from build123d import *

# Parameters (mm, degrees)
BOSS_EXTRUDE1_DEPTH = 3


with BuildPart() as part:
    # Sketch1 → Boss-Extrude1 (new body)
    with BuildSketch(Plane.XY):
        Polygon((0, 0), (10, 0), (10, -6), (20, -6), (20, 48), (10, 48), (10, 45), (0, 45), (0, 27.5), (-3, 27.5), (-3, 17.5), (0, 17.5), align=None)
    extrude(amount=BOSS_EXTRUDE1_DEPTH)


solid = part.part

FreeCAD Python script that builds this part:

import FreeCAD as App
import Part
import Sketcher


def add_polygon(sketch, points):
    """Adds a closed chain of lines whose ends are joined by coincident constraints."""
    first, n = sketch.GeometryCount, len(points)
    for a, b in zip(points, points[1:] + points[:1]):
        sketch.addGeometry(Part.LineSegment(App.Vector(*a, 0), App.Vector(*b, 0)), False)
    for i in range(n):
        sketch.addConstraint(Sketcher.Constraint("Coincident", first + i, 2, first + (i + 1) % n, 1))

doc = App.newDocument("Part")
body = doc.addObject("PartDesign::Body", "Body")

sketch1 = body.newObject("Sketcher::SketchObject", "Sketch")
sketch1.AttachmentSupport = (doc.getObject("XY_Plane"), [""])
sketch1.MapMode = "FlatFace"
add_polygon(sketch1, [(0, 0), (10, 0), (10, -6), (20, -6), (20, 48), (10, 48), (10, 45), (0, 45), (0, 27.5), (-3, 27.5), (-3, 17.5), (0, 17.5)])
sketch1.addConstraint([
    Sketcher.Constraint("Horizontal", 0),
    Sketcher.Constraint("Vertical", 1),
    Sketcher.Constraint("Horizontal", 2),
    Sketcher.Constraint("Vertical", 3),
    Sketcher.Constraint("Horizontal", 4),
    Sketcher.Constraint("Vertical", 5),
    Sketcher.Constraint("Horizontal", 6),
    Sketcher.Constraint("Vertical", 7),
    Sketcher.Constraint("Horizontal", 8),
    Sketcher.Constraint("Vertical", 9),
    Sketcher.Constraint("Horizontal", 10),
    Sketcher.Constraint("Vertical", 11),
    Sketcher.Constraint("Coincident", 11, 2, -1, 1),
    Sketcher.Constraint("PointOnObject", 6, 2, -2),
    Sketcher.Constraint("Vertical", 1, 2, 4, 2),
    Sketcher.Constraint("Equal", 0, 2),
    Sketcher.Constraint("Equal", 10, 5),
    Sketcher.Constraint("Equal", 6, 9),
    Sketcher.Constraint("Equal", 7, 11),
    Sketcher.Constraint("DistanceX", 0, 1, 0, 2, 10.0),
    Sketcher.Constraint("DistanceX", 8, 2, 8, 1, 3.0),
    Sketcher.Constraint("DistanceY", 1, 2, 1, 1, 6.0),
    Sketcher.Constraint("DistanceY", 3, 1, 3, 2, 54.0),
])
pad1 = body.newObject("PartDesign::Pad", "Pad")
pad1.Profile = sketch1
pad1.Length = 3

doc.recompute()
